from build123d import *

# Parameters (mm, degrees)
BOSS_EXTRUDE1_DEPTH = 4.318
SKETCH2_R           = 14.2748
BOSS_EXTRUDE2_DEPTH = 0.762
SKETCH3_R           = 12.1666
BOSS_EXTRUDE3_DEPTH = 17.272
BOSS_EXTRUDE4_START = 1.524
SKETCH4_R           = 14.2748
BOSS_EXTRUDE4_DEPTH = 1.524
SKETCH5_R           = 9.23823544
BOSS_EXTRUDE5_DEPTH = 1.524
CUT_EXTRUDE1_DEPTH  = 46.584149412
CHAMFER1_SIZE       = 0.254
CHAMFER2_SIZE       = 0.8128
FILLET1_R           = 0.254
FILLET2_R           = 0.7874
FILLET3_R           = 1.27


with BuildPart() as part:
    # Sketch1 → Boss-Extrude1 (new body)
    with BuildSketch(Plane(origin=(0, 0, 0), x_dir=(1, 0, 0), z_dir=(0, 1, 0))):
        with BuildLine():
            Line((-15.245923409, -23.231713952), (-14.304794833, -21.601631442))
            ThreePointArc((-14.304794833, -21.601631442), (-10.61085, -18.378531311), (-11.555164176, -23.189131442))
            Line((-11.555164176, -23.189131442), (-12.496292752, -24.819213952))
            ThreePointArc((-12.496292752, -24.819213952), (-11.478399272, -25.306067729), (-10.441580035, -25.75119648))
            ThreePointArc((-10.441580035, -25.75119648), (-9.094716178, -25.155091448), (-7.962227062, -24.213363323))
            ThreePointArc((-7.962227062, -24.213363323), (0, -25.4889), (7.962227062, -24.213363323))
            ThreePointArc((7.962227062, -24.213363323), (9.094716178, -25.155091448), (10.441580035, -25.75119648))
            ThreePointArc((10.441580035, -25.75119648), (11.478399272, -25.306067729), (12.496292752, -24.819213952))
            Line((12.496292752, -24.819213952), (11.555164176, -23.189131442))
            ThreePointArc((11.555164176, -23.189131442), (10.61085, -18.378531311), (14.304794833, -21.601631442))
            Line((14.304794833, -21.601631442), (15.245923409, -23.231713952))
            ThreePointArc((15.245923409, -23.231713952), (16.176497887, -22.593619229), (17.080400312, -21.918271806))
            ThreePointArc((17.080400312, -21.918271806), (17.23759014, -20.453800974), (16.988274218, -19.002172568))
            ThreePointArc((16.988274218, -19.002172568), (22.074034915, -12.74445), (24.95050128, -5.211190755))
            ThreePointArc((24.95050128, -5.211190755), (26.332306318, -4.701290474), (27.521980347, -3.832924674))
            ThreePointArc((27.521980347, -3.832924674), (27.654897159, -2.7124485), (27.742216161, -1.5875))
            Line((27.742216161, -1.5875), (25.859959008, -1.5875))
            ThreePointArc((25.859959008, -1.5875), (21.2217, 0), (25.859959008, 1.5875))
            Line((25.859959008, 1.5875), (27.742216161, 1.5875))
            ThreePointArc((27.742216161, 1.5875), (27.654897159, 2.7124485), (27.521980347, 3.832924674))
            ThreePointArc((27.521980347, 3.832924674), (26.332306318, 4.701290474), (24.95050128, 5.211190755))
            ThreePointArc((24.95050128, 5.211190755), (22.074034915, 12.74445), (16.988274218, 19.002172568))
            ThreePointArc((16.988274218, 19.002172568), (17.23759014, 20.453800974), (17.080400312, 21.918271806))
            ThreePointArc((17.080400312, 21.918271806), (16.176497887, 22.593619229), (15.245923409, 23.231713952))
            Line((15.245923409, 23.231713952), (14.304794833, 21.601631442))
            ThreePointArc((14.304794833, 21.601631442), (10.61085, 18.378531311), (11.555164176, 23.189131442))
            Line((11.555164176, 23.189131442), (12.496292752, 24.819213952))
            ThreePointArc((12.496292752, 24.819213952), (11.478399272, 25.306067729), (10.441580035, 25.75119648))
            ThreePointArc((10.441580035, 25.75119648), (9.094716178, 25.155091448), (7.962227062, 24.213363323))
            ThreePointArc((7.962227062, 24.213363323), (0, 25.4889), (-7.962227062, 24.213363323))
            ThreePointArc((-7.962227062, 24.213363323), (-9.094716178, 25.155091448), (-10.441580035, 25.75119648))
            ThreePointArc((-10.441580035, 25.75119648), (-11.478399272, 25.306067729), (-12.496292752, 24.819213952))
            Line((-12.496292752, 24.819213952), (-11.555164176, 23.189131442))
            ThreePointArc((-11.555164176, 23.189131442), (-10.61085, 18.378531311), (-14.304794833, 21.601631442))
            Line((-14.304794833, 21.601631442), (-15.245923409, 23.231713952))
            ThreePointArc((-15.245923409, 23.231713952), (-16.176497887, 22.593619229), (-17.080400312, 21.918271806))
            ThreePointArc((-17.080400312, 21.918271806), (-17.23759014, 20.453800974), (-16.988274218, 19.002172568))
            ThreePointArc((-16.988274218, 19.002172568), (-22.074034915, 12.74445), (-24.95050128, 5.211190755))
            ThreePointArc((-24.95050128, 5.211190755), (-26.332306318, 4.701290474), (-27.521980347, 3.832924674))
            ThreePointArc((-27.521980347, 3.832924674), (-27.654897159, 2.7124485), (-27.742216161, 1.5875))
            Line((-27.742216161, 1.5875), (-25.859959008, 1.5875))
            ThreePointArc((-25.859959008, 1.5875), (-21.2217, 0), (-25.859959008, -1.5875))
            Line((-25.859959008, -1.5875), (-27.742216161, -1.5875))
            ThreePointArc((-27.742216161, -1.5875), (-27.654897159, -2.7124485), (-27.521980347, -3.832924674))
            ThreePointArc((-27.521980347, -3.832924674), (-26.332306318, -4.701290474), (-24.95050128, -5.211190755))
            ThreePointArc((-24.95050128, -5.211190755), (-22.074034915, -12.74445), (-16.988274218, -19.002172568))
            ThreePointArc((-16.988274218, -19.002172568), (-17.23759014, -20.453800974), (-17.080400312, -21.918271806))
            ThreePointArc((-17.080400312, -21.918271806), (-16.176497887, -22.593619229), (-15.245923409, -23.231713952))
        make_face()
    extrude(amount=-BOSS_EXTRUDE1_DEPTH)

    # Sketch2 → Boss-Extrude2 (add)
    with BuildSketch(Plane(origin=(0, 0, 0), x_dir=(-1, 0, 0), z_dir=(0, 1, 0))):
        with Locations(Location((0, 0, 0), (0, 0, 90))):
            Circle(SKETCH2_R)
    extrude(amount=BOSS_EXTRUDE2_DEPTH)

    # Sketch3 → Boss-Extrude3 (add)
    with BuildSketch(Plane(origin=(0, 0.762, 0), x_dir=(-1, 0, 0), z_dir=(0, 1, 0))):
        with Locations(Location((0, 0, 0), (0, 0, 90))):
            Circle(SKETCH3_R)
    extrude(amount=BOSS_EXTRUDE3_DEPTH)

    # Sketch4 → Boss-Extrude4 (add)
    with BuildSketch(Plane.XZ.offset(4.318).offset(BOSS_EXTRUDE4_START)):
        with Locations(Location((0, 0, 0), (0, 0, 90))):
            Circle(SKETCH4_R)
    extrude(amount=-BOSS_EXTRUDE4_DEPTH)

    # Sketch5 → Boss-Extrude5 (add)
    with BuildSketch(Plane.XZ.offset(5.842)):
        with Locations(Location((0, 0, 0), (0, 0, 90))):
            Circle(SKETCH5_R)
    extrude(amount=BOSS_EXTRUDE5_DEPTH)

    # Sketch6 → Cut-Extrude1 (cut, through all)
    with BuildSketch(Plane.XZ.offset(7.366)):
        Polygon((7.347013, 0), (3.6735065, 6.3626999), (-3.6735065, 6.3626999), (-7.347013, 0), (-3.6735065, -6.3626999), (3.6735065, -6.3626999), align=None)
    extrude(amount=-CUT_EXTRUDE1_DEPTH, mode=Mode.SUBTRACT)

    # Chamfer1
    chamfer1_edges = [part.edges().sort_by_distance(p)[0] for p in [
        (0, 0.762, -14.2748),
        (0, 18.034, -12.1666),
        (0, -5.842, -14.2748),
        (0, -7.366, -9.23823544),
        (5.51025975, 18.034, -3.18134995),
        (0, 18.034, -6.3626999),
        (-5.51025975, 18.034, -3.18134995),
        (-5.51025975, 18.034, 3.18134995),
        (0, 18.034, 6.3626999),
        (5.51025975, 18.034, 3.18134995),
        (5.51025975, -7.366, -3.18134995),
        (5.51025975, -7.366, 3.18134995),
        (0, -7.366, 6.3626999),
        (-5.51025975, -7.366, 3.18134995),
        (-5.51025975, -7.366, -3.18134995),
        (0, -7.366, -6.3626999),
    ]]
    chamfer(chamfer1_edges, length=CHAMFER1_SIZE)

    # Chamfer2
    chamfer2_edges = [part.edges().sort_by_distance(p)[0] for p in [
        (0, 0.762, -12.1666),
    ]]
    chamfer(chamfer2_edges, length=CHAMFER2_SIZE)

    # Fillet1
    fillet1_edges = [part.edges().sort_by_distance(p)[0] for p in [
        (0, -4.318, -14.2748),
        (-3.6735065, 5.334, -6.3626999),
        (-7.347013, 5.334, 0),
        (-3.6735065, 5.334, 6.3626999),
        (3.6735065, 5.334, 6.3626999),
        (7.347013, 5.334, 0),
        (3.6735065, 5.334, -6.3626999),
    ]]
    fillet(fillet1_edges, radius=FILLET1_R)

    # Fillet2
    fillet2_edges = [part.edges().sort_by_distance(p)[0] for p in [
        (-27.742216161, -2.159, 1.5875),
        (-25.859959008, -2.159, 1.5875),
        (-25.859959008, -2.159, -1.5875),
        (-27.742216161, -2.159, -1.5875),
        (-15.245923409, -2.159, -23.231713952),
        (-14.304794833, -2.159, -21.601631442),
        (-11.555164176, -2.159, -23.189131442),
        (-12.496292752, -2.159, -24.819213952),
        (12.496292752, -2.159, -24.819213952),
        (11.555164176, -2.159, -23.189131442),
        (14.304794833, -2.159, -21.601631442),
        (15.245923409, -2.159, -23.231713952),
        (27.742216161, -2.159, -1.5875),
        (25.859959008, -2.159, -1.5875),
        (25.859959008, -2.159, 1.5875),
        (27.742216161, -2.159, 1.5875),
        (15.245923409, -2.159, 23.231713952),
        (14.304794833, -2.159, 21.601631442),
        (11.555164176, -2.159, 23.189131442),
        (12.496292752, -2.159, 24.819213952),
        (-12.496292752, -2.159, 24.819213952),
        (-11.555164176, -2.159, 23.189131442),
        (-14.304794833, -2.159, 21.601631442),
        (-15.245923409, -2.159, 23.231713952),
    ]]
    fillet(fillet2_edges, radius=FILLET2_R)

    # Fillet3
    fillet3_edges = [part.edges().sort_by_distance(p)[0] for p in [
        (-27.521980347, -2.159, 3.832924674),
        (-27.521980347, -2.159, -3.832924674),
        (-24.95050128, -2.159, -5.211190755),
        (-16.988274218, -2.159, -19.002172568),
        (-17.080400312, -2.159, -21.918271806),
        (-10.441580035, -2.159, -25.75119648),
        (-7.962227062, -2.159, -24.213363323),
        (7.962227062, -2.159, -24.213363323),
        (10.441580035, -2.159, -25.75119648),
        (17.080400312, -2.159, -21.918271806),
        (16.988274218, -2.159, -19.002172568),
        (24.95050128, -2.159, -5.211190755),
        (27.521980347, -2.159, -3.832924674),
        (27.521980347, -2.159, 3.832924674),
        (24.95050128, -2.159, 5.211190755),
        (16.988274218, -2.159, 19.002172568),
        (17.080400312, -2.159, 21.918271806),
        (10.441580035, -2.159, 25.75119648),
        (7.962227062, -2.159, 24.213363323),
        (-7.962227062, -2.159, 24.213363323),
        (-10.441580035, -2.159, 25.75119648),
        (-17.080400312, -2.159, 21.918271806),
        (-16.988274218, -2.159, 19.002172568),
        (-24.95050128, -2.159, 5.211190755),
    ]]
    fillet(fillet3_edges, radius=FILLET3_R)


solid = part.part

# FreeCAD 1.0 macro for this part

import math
import FreeCAD as App
import Part
import Sketcher
Q = App.Units.Quantity


def edges_at(feature, points):
    """Names of the edges that pass closest to the given points."""
    edges = feature.Shape.Edges
    near = lambda p: min(range(len(edges)), key=lambda i: edges[i].distToShape(Part.Vertex(*p))[0])
    return sorted({f"Edge{near(p) + 1}" for p in points})


def add_polygon(sketch, points):
    """Adds a closed chain of lines whose ends are joined by coincident constraints."""
    first, n = sketch.GeometryCount, len(points)
    for a, b in zip(points, points[1:] + points[:1]):
        sketch.addGeometry(Part.LineSegment(App.Vector(*a, 0), App.Vector(*b, 0)), False)
    for i in range(n):
        sketch.addConstraint(Sketcher.Constraint("Coincident", first + i, 2, first + (i + 1) % n, 1))

doc = App.newDocument("Part")
body = doc.addObject("PartDesign::Body", "Body")

# Sketch on XZ plane
sketch1 = body.newObject("Sketcher::SketchObject", "Sketch")
sketch1.AttachmentSupport = (doc.getObject("XZ_Plane"), [""])
sketch1.MapMode = "FlatFace"
sketch1.addGeometry([
    Part.LineSegment(App.Vector(-15.245923, 23.231714, 0), App.Vector(-14.304795, 21.601631, 0)),  # 0
    Part.ArcOfCircle(Part.Circle(App.Vector(-11.90625, 20.62223, 0), App.Vector(0, 0, 1), 2.5908), math.radians(157.788257), math.radians(442.211743)),  # 1
    Part.LineSegment(App.Vector(-11.555164, 23.189131, 0), App.Vector(-12.496293, 24.819214, 0)),  # 2
    Part.ArcOfCircle(Part.Circle(App.Vector(0, 0, 0), App.Vector(0, 0, 1), 27.7876), math.radians(112.071541), math.radians(116.72492)),  # 3
    Part.ArcOfCircle(Part.Circle(App.Vector(-11.90625, 20.62223, 0), App.Vector(0, 0, 1), 5.334), math.radians(42.31866), math.radians(74.06234)),  # 4
    Part.ArcOfCircle(Part.Circle(App.Vector(0, 0, 0), App.Vector(0, 0, 1), 25.4889), math.radians(71.79727), math.radians(108.20273)),  # 5
    Part.ArcOfCircle(Part.Circle(App.Vector(11.90625, 20.62223, 0), App.Vector(0, 0, 1), 5.334), math.radians(105.93766), math.radians(137.68134)),  # 6
    Part.ArcOfCircle(Part.Circle(App.Vector(0, 0, 0), App.Vector(0, 0, 1), 27.7876), math.radians(63.27508), math.radians(67.928459)),  # 7
    Part.LineSegment(App.Vector(12.496293, 24.819214, 0), App.Vector(11.555164, 23.189131, 0)),  # 8
    Part.ArcOfCircle(Part.Circle(App.Vector(11.90625, 20.62223, 0), App.Vector(0, 0, 1), 2.5908), math.radians(97.788257), math.radians(382.211743)),  # 9
    Part.LineSegment(App.Vector(14.304795, 21.601631, 0), App.Vector(15.245923, 23.231714, 0)),  # 10
    Part.ArcOfCircle(Part.Circle(App.Vector(0, 0, 0), App.Vector(0, 0, 1), 27.7876), math.radians(52.071541), math.radians(56.72492)),  # 11
    Part.ArcOfCircle(Part.Circle(App.Vector(11.90625, 20.62223, 0), App.Vector(0, 0, 1), 5.334), math.radians(-17.68134), math.radians(14.062341)),  # 12
    Part.ArcOfCircle(Part.Circle(App.Vector(0, 0, 0), App.Vector(0, 0, 1), 25.4889), math.radians(11.79727), math.radians(48.20273)),  # 13
    Part.ArcOfCircle(Part.Circle(App.Vector(23.8125, 0, 0), App.Vector(0, 0, 1), 5.334), math.radians(45.937659), math.radians(77.68134)),  # 14
    Part.ArcOfCircle(Part.Circle(App.Vector(-0.000001, 0, 0), App.Vector(0, 0, 1), 27.787601), math.radians(3.27508), math.radians(7.928459)),  # 15
    Part.LineSegment(App.Vector(27.742216, 1.5875, 0), App.Vector(25.859959, 1.5875, 0)),  # 16
    Part.ArcOfCircle(Part.Circle(App.Vector(23.8125, 0, 0), App.Vector(0, 0, 1), 2.5908), math.radians(37.788257), math.radians(322.211743)),  # 17
    Part.LineSegment(App.Vector(25.859959, -1.5875, 0), App.Vector(27.742216, -1.5875, 0)),  # 18
    Part.ArcOfCircle(Part.Circle(App.Vector(-0.000001, 0, 0), App.Vector(0, 0, 1), 27.787601), math.radians(-7.928459), math.radians(-3.27508)),  # 19
    Part.ArcOfCircle(Part.Circle(App.Vector(23.8125, 0, 0), App.Vector(0, 0, 1), 5.334), math.radians(-77.68134), math.radians(-45.937659)),  # 20
    Part.ArcOfCircle(Part.Circle(App.Vector(0, 0, 0), App.Vector(0, 0, 1), 25.4889), math.radians(-48.20273), math.radians(-11.79727)),  # 21
    Part.ArcOfCircle(Part.Circle(App.Vector(11.90625, -20.62223, 0), App.Vector(0, 0, 1), 5.334), math.radians(-14.062341), math.radians(17.68134)),  # 22
    Part.ArcOfCircle(Part.Circle(App.Vector(0, 0, 0), App.Vector(0, 0, 1), 27.7876), math.radians(-56.72492), math.radians(-52.071541)),  # 23
    Part.LineSegment(App.Vector(15.245923, -23.231714, 0), App.Vector(14.304795, -21.601631, 0)),  # 24
    Part.ArcOfCircle(Part.Circle(App.Vector(11.90625, -20.62223, 0), App.Vector(0, 0, 1), 2.5908), math.radians(-22.211743), math.radians(262.211743)),  # 25
    Part.LineSegment(App.Vector(11.555164, -23.189131, 0), App.Vector(12.496293, -24.819214, 0)),  # 26
    Part.ArcOfCircle(Part.Circle(App.Vector(0, 0, 0), App.Vector(0, 0, 1), 27.7876), math.radians(-67.928459), math.radians(-63.27508)),  # 27
    Part.ArcOfCircle(Part.Circle(App.Vector(11.90625, -20.62223, 0), App.Vector(0, 0, 1), 5.334), math.radians(-137.68134), math.radians(-105.93766)),  # 28
    Part.ArcOfCircle(Part.Circle(App.Vector(0, 0, 0), App.Vector(0, 0, 1), 25.4889), math.radians(-108.20273), math.radians(-71.79727)),  # 29
    Part.ArcOfCircle(Part.Circle(App.Vector(-11.90625, -20.62223, 0), App.Vector(0, 0, 1), 5.334), math.radians(-74.06234), math.radians(-42.31866)),  # 30
    Part.ArcOfCircle(Part.Circle(App.Vector(0, 0, 0), App.Vector(0, 0, 1), 27.7876), math.radians(-116.72492), math.radians(-112.071541)),  # 31
    Part.LineSegment(App.Vector(-12.496293, -24.819214, 0), App.Vector(-11.555164, -23.189131, 0)),  # 32
    Part.ArcOfCircle(Part.Circle(App.Vector(-11.90625, -20.62223, 0), App.Vector(0, 0, 1), 2.5908), math.radians(-82.211743), math.radians(202.211743)),  # 33
    Part.LineSegment(App.Vector(-14.304795, -21.601631, 0), App.Vector(-15.245923, -23.231714, 0)),  # 34
    Part.ArcOfCircle(Part.Circle(App.Vector(0, 0, 0), App.Vector(0, 0, 1), 27.7876), math.radians(-127.928459), math.radians(-123.27508)),  # 35
    Part.ArcOfCircle(Part.Circle(App.Vector(-11.90625, -20.62223, 0), App.Vector(0, 0, 1), 5.334), math.radians(162.31866), math.radians(194.062341)),  # 36
    Part.ArcOfCircle(Part.Circle(App.Vector(0, 0, 0), App.Vector(0, 0, 1), 25.4889), math.radians(-168.20273), math.radians(-131.79727)),  # 37
    Part.ArcOfCircle(Part.Circle(App.Vector(-23.8125, 0, 0), App.Vector(0, 0, 1), 5.334), math.radians(-134.062341), math.radians(-102.31866)),  # 38
    Part.ArcOfCircle(Part.Circle(App.Vector(0.000001, 0, 0), App.Vector(0, 0, 1), 27.787601), math.radians(-176.72492), math.radians(-172.071541)),  # 39
    Part.LineSegment(App.Vector(-27.742216, -1.5875, 0), App.Vector(-25.859959, -1.5875, 0)),  # 40
    Part.ArcOfCircle(Part.Circle(App.Vector(-23.8125, 0, 0), App.Vector(0, 0, 1), 2.5908), math.radians(-142.211743), math.radians(142.211743)),  # 41
    Part.LineSegment(App.Vector(-25.859959, 1.5875, 0), App.Vector(-27.742216, 1.5875, 0)),  # 42
    Part.ArcOfCircle(Part.Circle(App.Vector(0.000001, 0, 0), App.Vector(0, 0, 1), 27.787601), math.radians(172.071541), math.radians(176.72492)),  # 43
    Part.ArcOfCircle(Part.Circle(App.Vector(-23.8125, 0, 0), App.Vector(0, 0, 1), 5.334), math.radians(102.31866), math.radians(134.062341)),  # 44
    Part.ArcOfCircle(Part.Circle(App.Vector(0, 0, 0), App.Vector(0, 0, 1), 25.4889), math.radians(131.79727), math.radians(168.20273)),  # 45
    Part.ArcOfCircle(Part.Circle(App.Vector(-11.90625, 20.62223, 0), App.Vector(0, 0, 1), 5.334), math.radians(165.937659), math.radians(197.68134)),  # 46
    Part.ArcOfCircle(Part.Circle(App.Vector(0, 0, 0), App.Vector(0, 0, 1), 27.7876), math.radians(123.27508), math.radians(127.928459)),  # 47
], False)
sketch1.addConstraint([
    Sketcher.Constraint("Coincident", 0, 2, 1, 1),
    Sketcher.Constraint("Coincident", 1, 2, 2, 1),
    Sketcher.Constraint("Coincident", 2, 2, 3, 2),
    Sketcher.Constraint("Coincident", 3, 1, 4, 2),
    Sketcher.Constraint("Coincident", 4, 1, 5, 2),
    Sketcher.Constraint("Coincident", 5, 1, 6, 2),
    Sketcher.Constraint("Coincident", 6, 1, 7, 2),
    Sketcher.Constraint("Coincident", 7, 1, 8, 1),
    Sketcher.Constraint("Coincident", 8, 2, 9, 1),
    Sketcher.Constraint("Coincident", 9, 2, 10, 1),
    Sketcher.Constraint("Coincident", 10, 2, 11, 2),
    Sketcher.Constraint("Coincident", 11, 1, 12, 2),
    Sketcher.Constraint("Coincident", 12, 1, 13, 2),
    Sketcher.Constraint("Coincident", 13, 1, 14, 2),
    Sketcher.Constraint("Coincident", 14, 1, 15, 2),
    Sketcher.Constraint("Coincident", 15, 1, 16, 1),
    Sketcher.Constraint("Coincident", 16, 2, 17, 1),
    Sketcher.Constraint("Coincident", 17, 2, 18, 1),
    Sketcher.Constraint("Coincident", 18, 2, 19, 2),
    Sketcher.Constraint("Coincident", 19, 1, 20, 2),
    Sketcher.Constraint("Coincident", 20, 1, 21, 2),
    Sketcher.Constraint("Coincident", 21, 1, 22, 2),
    Sketcher.Constraint("Coincident", 22, 1, 23, 2),
    Sketcher.Constraint("Coincident", 23, 1, 24, 1),
    Sketcher.Constraint("Coincident", 24, 2, 25, 1),
    Sketcher.Constraint("Coincident", 25, 2, 26, 1),
    Sketcher.Constraint("Coincident", 26, 2, 27, 2),
    Sketcher.Constraint("Coincident", 27, 1, 28, 2),
    Sketcher.Constraint("Coincident", 28, 1, 29, 2),
    Sketcher.Constraint("Coincident", 29, 1, 30, 2),
    Sketcher.Constraint("Coincident", 30, 1, 31, 2),
    Sketcher.Constraint("Coincident", 31, 1, 32, 1),
    Sketcher.Constraint("Coincident", 32, 2, 33, 1),
    Sketcher.Constraint("Coincident", 33, 2, 34, 1),
    Sketcher.Constraint("Coincident", 34, 2, 35, 2),
    Sketcher.Constraint("Coincident", 35, 1, 36, 2),
    Sketcher.Constraint("Coincident", 36, 1, 37, 2),
    Sketcher.Constraint("Coincident", 37, 1, 38, 2),
    Sketcher.Constraint("Coincident", 38, 1, 39, 2),
    Sketcher.Constraint("Coincident", 39, 1, 40, 1),
    Sketcher.Constraint("Coincident", 40, 2, 41, 1),
    Sketcher.Constraint("Coincident", 41, 2, 42, 1),
    Sketcher.Constraint("Coincident", 42, 2, 43, 2),
    Sketcher.Constraint("Coincident", 43, 1, 44, 2),
    Sketcher.Constraint("Coincident", 44, 1, 45, 2),
    Sketcher.Constraint("Coincident", 45, 1, 46, 2),
    Sketcher.Constraint("Coincident", 46, 1, 47, 2),
    Sketcher.Constraint("Coincident", 47, 1, 0, 1),
    Sketcher.Constraint("Horizontal", 16),
    Sketcher.Constraint("Horizontal", 18),
    Sketcher.Constraint("Horizontal", 40),
    Sketcher.Constraint("Horizontal", 42),
    Sketcher.Constraint("Coincident", 3, 3, -1, 1),
    Sketcher.Constraint("Coincident", 5, 3, -1, 1),
    Sketcher.Constraint("Coincident", 7, 3, -1, 1),
    Sketcher.Constraint("Coincident", 11, 3, -1, 1),
    Sketcher.Constraint("Coincident", 13, 3, -1, 1),
    Sketcher.Constraint("Coincident", 15, 3, -1, 1),
    Sketcher.Constraint("Coincident", 19, 3, -1, 1),
    Sketcher.Constraint("Coincident", 21, 3, -1, 1),
    Sketcher.Constraint("Coincident", 23, 3, -1, 1),
    Sketcher.Constraint("Coincident", 27, 3, -1, 1),
    Sketcher.Constraint("Coincident", 29, 3, -1, 1),
    Sketcher.Constraint("Coincident", 31, 3, -1, 1),
    Sketcher.Constraint("Coincident", 35, 3, -1, 1),
    Sketcher.Constraint("Coincident", 37, 3, -1, 1),
    Sketcher.Constraint("Coincident", 39, 3, -1, 1),
    Sketcher.Constraint("Coincident", 43, 3, -1, 1),
    Sketcher.Constraint("Coincident", 45, 3, -1, 1),
    Sketcher.Constraint("Coincident", 47, 3, -1, 1),
    Sketcher.Constraint("Coincident", 4, 3, 1, 3),
    Sketcher.Constraint("Coincident", 9, 3, 6, 3),
    Sketcher.Constraint("Coincident", 12, 3, 6, 3),
    Sketcher.Constraint("Coincident", 17, 3, 14, 3),
    Sketcher.Constraint("Coincident", 20, 3, 14, 3),
    Sketcher.Constraint("Coincident", 25, 3, 22, 3),
    Sketcher.Constraint("Coincident", 28, 3, 22, 3),
    Sketcher.Constraint("Coincident", 33, 3, 30, 3),
    Sketcher.Constraint("Coincident", 36, 3, 30, 3),
    Sketcher.Constraint("Coincident", 41, 3, 38, 3),
    Sketcher.Constraint("Coincident", 44, 3, 38, 3),
    Sketcher.Constraint("Coincident", 46, 3, 1, 3),
    Sketcher.Constraint("Equal", 4, 6),
    Sketcher.Constraint("Equal", 3, 7),
    Sketcher.Constraint("Equal", 1, 9),
    Sketcher.Constraint("Equal", 7, 11),
    Sketcher.Constraint("Equal", 6, 12),
    Sketcher.Constraint("Equal", 5, 13),
    Sketcher.Constraint("Equal", 12, 14),
    Sketcher.Constraint("Equal", 11, 15),
    Sketcher.Constraint("Equal", 9, 17),
    Sketcher.Constraint("Equal", 15, 19),
    Sketcher.Constraint("Equal", 14, 20),
    Sketcher.Constraint("Equal", 13, 21),
    Sketcher.Constraint("Equal", 20, 22),
    Sketcher.Constraint("Equal", 19, 23),
    Sketcher.Constraint("Equal", 17, 25),
    Sketcher.Constraint("Equal", 23, 27),
    Sketcher.Constraint("Equal", 22, 28),
    Sketcher.Constraint("Equal", 21, 29),
    Sketcher.Constraint("Equal", 28, 30),
    Sketcher.Constraint("Equal", 27, 31),
    Sketcher.Constraint("Equal", 25, 33),
    Sketcher.Constraint("Equal", 31, 35),
    Sketcher.Constraint("Equal", 30, 36),
    Sketcher.Constraint("Equal", 29, 37),
    Sketcher.Constraint("Equal", 36, 38),
    Sketcher.Constraint("Equal", 35, 39),
    Sketcher.Constraint("Equal", 33, 41),
    Sketcher.Constraint("Equal", 39, 43),
    Sketcher.Constraint("Equal", 38, 44),
    Sketcher.Constraint("Equal", 37, 45),
    Sketcher.Constraint("Equal", 44, 46),
    Sketcher.Constraint("Equal", 43, 47),
    Sketcher.Constraint("Symmetric", 1, 3, 22, 3, -1, 1),
    Sketcher.Constraint("Symmetric", 6, 3, 30, 3, -1, 1),
    Sketcher.Constraint("Symmetric", 14, 3, 38, 3, -1, 1),
    Sketcher.Constraint("Symmetric", 1, 3, 6, 3, -2),
    Sketcher.Constraint("Symmetric", 17, 2, 40, 2, -2),
    Sketcher.Constraint("Parallel", 0, 2),
    Sketcher.Constraint("Parallel", 8, 10),
    Sketcher.Constraint("Parallel", 2, 24),
    Sketcher.Constraint("Parallel", 24, 26),
    Sketcher.Constraint("Parallel", 10, 32),
    Sketcher.Constraint("Parallel", 32, 34),
    Sketcher.Constraint("Horizontal", 2, 2, 7, 1),
    Sketcher.Constraint("Horizontal", 1, 2, 8, 2),
    Sketcher.Constraint("Horizontal", 0, 2, 9, 2),
    Sketcher.Constraint("Horizontal", 26, 2, 31, 1),
    Sketcher.Constraint("Horizontal", 24, 2, 33, 2),
    Sketcher.Constraint("Horizontal", 16, 2, 41, 2),
    Sketcher.Constraint("Vertical", 16, 2, 17, 2),
    Sketcher.Constraint("Vertical", 10, 2, 23, 1),
    Sketcher.Constraint("Vertical", 8, 2, 25, 2),
    Sketcher.Constraint("Equal", 0, 2),
    Sketcher.Constraint("Radius", 4, Q("0.21 in")),
    Sketcher.Constraint("Angle", 0, Q("-60 deg")),
    Sketcher.Constraint("Radius", 1, Q("0.102 in")),
    Sketcher.Constraint("Radius", 3, Q("1.094 in")),
    Sketcher.Constraint("Radius", 5, Q("1.0035 in")),
    Sketcher.Constraint("DistanceX", 1, 3, -1, 1, Q("0.46875 in")),
    Sketcher.Constraint("DistanceX", -1, 1, 14, 3, Q("0.9375 in")),
    Sketcher.Constraint("DistanceY", -1, 1, 15, 1, Q("0.0625 in")),
    Sketcher.Constraint("DistanceX", -1, 1, 11, 1, Q("17.0804 mm")),
    Sketcher.Constraint("DistanceY", -1, 1, 0, 2, Q("21.601631 mm")),
])
pad1 = body.newObject("PartDesign::Pad", "Pad")
pad1.Profile = sketch1
pad1.Length = Q("0.17 in")

# Sketch on XZ plane
sketch2 = body.newObject("Sketcher::SketchObject", "Sketch001")
sketch2.AttachmentSupport = (doc.getObject("XZ_Plane"), [""])
sketch2.MapMode = "FlatFace"
sketch2.addGeometry(Part.Circle(App.Vector(0, 0, 0), App.Vector(0, 0, 1), 14.2748), False)
sketch2.addConstraint([
    Sketcher.Constraint("Coincident", 0, 3, -1, 1),
    Sketcher.Constraint("Diameter", 0, Q("1.124 in")),
])
pad2 = body.newObject("PartDesign::Pad", "Pad001")
pad2.Profile = sketch2
pad2.Length = Q("0.03 in")
pad2.Reversed = True

# Sketch on XZ plane
sketch3 = body.newObject("Sketcher::SketchObject", "Sketch002")
sketch3.AttachmentSupport = (doc.getObject("XZ_Plane"), [""])
sketch3.MapMode = "FlatFace"
sketch3.AttachmentOffset = App.Placement(App.Vector(0, 0, -0.03 * 25.4), App.Rotation())
sketch3.addGeometry(Part.Circle(App.Vector(0, 0, 0), App.Vector(0, 0, 1), 12.1666), False)
sketch3.addConstraint([
    Sketcher.Constraint("Coincident", 0, 3, -1, 1),
    Sketcher.Constraint("Diameter", 0, Q("0.958 in")),
])
pad3 = body.newObject("PartDesign::Pad", "Pad002")
pad3.Profile = sketch3
pad3.Length = Q("0.68 in")
pad3.Reversed = True

# Sketch on XZ plane
sketch4 = body.newObject("Sketcher::SketchObject", "Sketch003")
sketch4.AttachmentSupport = (doc.getObject("XZ_Plane"), [""])
sketch4.MapMode = "FlatFace"
sketch4.AttachmentOffset = App.Placement(App.Vector(0, 0, 0.23 * 25.4), App.Rotation())
sketch4.addGeometry(Part.Circle(App.Vector(0, 0, 0), App.Vector(0, 0, 1), 14.2748), False)
sketch4.addConstraint([
    Sketcher.Constraint("Coincident", 0, 3, -1, 1),
    Sketcher.Constraint("Diameter", 0, Q("1.124 in")),
])
pad4 = body.newObject("PartDesign::Pad", "Pad003")
pad4.Profile = sketch4
pad4.Length = Q("0.06 in")
pad4.Reversed = True

# Sketch on XZ plane
sketch5 = body.newObject("Sketcher::SketchObject", "Sketch004")
sketch5.AttachmentSupport = (doc.getObject("XZ_Plane"), [""])
sketch5.MapMode = "FlatFace"
sketch5.AttachmentOffset = App.Placement(App.Vector(0, 0, 0.23 * 25.4), App.Rotation())
sketch5.addGeometry(Part.Circle(App.Vector(0, 0, 0), App.Vector(0, 0, 1), 9.238235), False)
sketch5.addConstraint([
    Sketcher.Constraint("Coincident", 0, 3, -1, 1),
    Sketcher.Constraint("Diameter", 0, Q("18.476471 mm")),
])
pad5 = body.newObject("PartDesign::Pad", "Pad004")
pad5.Profile = sketch5
pad5.Length = Q("0.06 in")

# Sketch on XZ plane
sketch6 = body.newObject("Sketcher::SketchObject", "Sketch005")
sketch6.AttachmentSupport = (doc.getObject("XZ_Plane"), [""])
sketch6.MapMode = "FlatFace"
sketch6.AttachmentOffset = App.Placement(App.Vector(0, 0, 0.29 * 25.4), App.Rotation())
add_polygon(sketch6, [(7.347013, 0), (3.673506, 6.3627), (-3.673506, 6.3627), (-7.347013, 0), (-3.673506, -6.3627), (3.673506, -6.3627)])  # lines 0-5
sketch6.addConstraint([
    Sketcher.Constraint("Horizontal", 1),
    Sketcher.Constraint("Horizontal", 4),
    Sketcher.Constraint("Symmetric", 0, 2, 3, 2, -1, 1),
    Sketcher.Constraint("Symmetric", 2, 2, 5, 2, -1, 1),
    Sketcher.Constraint("PointOnObject", 2, 2, -1),
    Sketcher.Constraint("Parallel", 2, 5),
    Sketcher.Constraint("Vertical", 1, 2, 3, 2),
    Sketcher.Constraint("Angle", 0, Q("120 deg")),
    Sketcher.Constraint("DistanceY", 3, 2, 1, 2, Q("0.501 in")),
    Sketcher.Constraint("DistanceX", 1, 2, 1, 1, Q("7.347013 mm")),
])
pocket1 = body.newObject("PartDesign::Pocket", "Pocket")
pocket1.Profile = sketch6
pocket1.Type = "ThroughAll"
doc.recompute()

chamfer = body.newObject("PartDesign::Chamfer", "Chamfer")
chamfer.Base = (pocket1, edges_at(pocket1, [
    (0, 0.762, -14.275),
    (0, 18.034, -12.167),
    (0, -5.842, -14.275),
    (0, -7.366, -9.238),
    (5.51, 18.034, -3.181),
    (0, 18.034, -6.363),
    (-5.51, 18.034, -3.181),
    (-5.51, 18.034, 3.181),
    (0, 18.034, 6.363),
    (5.51, 18.034, 3.181),
    (5.51, -7.366, -3.181),
    (5.51, -7.366, 3.181),
    (0, -7.366, 6.363),
    (-5.51, -7.366, 3.181),
    (-5.51, -7.366, -3.181),
    (0, -7.366, -6.363),
]))
chamfer.Size = Q("0.01 in")
doc.recompute()

chamfer2 = body.newObject("PartDesign::Chamfer", "Chamfer001")
chamfer2.Base = (chamfer, edges_at(chamfer, [(0, 0.762, -12.167)]))
chamfer2.Size = Q("0.032 in")
doc.recompute()

fillet = body.newObject("PartDesign::Fillet", "Fillet")
fillet.Base = (chamfer2, edges_at(chamfer2, [
    (0, -4.318, -14.275),
    (-3.674, 5.334, -6.363),
    (-7.347, 5.334, 0),
    (-3.674, 5.334, 6.363),
    (3.674, 5.334, 6.363),
    (7.347, 5.334, 0),
    (3.674, 5.334, -6.363),
]))
fillet.Radius = Q("0.01 in")
doc.recompute()

fillet2 = body.newObject("PartDesign::Fillet", "Fillet001")
fillet2.Base = (fillet, edges_at(fillet, [
    (-27.742, -2.159, 1.587),
    (-25.86, -2.159, 1.587),
    (-25.86, -2.159, -1.587),
    (-27.742, -2.159, -1.587),
    (-15.246, -2.159, -23.232),
    (-14.305, -2.159, -21.602),
    (-11.555, -2.159, -23.189),
    (-12.496, -2.159, -24.819),
    (12.496, -2.159, -24.819),
    (11.555, -2.159, -23.189),
    (14.305, -2.159, -21.602),
    (15.246, -2.159, -23.232),
    (27.742, -2.159, -1.587),
    (25.86, -2.159, -1.587),
    (25.86, -2.159, 1.587),
    (27.742, -2.159, 1.587),
    (15.246, -2.159, 23.232),
    (14.305, -2.159, 21.602),
    (11.555, -2.159, 23.189),
    (12.496, -2.159, 24.819),
    (-12.496, -2.159, 24.819),
    (-11.555, -2.159, 23.189),
    (-14.305, -2.159, 21.602),
    (-15.246, -2.159, 23.232),
]))
fillet2.Radius = Q("0.031 in")
doc.recompute()

fillet3 = body.newObject("PartDesign::Fillet", "Fillet002")
fillet3.Base = (fillet2, edges_at(fillet2, [
    (-27.522, -2.159, 3.833),
    (-27.522, -2.159, -3.833),
    (-24.951, -2.159, -5.211),
    (-16.988, -2.159, -19.002),
    (-17.08, -2.159, -21.918),
    (-10.442, -2.159, -25.751),
    (-7.962, -2.159, -24.213),
    (7.962, -2.159, -24.213),
    (10.442, -2.159, -25.751),
    (17.08, -2.159, -21.918),
    (16.988, -2.159, -19.002),
    (24.951, -2.159, -5.211),
    (27.522, -2.159, -3.833),
    (27.522, -2.159, 3.833),
    (24.951, -2.159, 5.211),
    (16.988, -2.159, 19.002),
    (17.08, -2.159, 21.918),
    (10.442, -2.159, 25.751),
    (7.962, -2.159, 24.213),
    (-7.962, -2.159, 24.213),
    (-10.442, -2.159, 25.751),
    (-17.08, -2.159, 21.918),
    (-16.988, -2.159, 19.002),
    (-24.951, -2.159, 5.211),
]))
fillet3.Radius = Q("0.05 in")

doc.recompute()
